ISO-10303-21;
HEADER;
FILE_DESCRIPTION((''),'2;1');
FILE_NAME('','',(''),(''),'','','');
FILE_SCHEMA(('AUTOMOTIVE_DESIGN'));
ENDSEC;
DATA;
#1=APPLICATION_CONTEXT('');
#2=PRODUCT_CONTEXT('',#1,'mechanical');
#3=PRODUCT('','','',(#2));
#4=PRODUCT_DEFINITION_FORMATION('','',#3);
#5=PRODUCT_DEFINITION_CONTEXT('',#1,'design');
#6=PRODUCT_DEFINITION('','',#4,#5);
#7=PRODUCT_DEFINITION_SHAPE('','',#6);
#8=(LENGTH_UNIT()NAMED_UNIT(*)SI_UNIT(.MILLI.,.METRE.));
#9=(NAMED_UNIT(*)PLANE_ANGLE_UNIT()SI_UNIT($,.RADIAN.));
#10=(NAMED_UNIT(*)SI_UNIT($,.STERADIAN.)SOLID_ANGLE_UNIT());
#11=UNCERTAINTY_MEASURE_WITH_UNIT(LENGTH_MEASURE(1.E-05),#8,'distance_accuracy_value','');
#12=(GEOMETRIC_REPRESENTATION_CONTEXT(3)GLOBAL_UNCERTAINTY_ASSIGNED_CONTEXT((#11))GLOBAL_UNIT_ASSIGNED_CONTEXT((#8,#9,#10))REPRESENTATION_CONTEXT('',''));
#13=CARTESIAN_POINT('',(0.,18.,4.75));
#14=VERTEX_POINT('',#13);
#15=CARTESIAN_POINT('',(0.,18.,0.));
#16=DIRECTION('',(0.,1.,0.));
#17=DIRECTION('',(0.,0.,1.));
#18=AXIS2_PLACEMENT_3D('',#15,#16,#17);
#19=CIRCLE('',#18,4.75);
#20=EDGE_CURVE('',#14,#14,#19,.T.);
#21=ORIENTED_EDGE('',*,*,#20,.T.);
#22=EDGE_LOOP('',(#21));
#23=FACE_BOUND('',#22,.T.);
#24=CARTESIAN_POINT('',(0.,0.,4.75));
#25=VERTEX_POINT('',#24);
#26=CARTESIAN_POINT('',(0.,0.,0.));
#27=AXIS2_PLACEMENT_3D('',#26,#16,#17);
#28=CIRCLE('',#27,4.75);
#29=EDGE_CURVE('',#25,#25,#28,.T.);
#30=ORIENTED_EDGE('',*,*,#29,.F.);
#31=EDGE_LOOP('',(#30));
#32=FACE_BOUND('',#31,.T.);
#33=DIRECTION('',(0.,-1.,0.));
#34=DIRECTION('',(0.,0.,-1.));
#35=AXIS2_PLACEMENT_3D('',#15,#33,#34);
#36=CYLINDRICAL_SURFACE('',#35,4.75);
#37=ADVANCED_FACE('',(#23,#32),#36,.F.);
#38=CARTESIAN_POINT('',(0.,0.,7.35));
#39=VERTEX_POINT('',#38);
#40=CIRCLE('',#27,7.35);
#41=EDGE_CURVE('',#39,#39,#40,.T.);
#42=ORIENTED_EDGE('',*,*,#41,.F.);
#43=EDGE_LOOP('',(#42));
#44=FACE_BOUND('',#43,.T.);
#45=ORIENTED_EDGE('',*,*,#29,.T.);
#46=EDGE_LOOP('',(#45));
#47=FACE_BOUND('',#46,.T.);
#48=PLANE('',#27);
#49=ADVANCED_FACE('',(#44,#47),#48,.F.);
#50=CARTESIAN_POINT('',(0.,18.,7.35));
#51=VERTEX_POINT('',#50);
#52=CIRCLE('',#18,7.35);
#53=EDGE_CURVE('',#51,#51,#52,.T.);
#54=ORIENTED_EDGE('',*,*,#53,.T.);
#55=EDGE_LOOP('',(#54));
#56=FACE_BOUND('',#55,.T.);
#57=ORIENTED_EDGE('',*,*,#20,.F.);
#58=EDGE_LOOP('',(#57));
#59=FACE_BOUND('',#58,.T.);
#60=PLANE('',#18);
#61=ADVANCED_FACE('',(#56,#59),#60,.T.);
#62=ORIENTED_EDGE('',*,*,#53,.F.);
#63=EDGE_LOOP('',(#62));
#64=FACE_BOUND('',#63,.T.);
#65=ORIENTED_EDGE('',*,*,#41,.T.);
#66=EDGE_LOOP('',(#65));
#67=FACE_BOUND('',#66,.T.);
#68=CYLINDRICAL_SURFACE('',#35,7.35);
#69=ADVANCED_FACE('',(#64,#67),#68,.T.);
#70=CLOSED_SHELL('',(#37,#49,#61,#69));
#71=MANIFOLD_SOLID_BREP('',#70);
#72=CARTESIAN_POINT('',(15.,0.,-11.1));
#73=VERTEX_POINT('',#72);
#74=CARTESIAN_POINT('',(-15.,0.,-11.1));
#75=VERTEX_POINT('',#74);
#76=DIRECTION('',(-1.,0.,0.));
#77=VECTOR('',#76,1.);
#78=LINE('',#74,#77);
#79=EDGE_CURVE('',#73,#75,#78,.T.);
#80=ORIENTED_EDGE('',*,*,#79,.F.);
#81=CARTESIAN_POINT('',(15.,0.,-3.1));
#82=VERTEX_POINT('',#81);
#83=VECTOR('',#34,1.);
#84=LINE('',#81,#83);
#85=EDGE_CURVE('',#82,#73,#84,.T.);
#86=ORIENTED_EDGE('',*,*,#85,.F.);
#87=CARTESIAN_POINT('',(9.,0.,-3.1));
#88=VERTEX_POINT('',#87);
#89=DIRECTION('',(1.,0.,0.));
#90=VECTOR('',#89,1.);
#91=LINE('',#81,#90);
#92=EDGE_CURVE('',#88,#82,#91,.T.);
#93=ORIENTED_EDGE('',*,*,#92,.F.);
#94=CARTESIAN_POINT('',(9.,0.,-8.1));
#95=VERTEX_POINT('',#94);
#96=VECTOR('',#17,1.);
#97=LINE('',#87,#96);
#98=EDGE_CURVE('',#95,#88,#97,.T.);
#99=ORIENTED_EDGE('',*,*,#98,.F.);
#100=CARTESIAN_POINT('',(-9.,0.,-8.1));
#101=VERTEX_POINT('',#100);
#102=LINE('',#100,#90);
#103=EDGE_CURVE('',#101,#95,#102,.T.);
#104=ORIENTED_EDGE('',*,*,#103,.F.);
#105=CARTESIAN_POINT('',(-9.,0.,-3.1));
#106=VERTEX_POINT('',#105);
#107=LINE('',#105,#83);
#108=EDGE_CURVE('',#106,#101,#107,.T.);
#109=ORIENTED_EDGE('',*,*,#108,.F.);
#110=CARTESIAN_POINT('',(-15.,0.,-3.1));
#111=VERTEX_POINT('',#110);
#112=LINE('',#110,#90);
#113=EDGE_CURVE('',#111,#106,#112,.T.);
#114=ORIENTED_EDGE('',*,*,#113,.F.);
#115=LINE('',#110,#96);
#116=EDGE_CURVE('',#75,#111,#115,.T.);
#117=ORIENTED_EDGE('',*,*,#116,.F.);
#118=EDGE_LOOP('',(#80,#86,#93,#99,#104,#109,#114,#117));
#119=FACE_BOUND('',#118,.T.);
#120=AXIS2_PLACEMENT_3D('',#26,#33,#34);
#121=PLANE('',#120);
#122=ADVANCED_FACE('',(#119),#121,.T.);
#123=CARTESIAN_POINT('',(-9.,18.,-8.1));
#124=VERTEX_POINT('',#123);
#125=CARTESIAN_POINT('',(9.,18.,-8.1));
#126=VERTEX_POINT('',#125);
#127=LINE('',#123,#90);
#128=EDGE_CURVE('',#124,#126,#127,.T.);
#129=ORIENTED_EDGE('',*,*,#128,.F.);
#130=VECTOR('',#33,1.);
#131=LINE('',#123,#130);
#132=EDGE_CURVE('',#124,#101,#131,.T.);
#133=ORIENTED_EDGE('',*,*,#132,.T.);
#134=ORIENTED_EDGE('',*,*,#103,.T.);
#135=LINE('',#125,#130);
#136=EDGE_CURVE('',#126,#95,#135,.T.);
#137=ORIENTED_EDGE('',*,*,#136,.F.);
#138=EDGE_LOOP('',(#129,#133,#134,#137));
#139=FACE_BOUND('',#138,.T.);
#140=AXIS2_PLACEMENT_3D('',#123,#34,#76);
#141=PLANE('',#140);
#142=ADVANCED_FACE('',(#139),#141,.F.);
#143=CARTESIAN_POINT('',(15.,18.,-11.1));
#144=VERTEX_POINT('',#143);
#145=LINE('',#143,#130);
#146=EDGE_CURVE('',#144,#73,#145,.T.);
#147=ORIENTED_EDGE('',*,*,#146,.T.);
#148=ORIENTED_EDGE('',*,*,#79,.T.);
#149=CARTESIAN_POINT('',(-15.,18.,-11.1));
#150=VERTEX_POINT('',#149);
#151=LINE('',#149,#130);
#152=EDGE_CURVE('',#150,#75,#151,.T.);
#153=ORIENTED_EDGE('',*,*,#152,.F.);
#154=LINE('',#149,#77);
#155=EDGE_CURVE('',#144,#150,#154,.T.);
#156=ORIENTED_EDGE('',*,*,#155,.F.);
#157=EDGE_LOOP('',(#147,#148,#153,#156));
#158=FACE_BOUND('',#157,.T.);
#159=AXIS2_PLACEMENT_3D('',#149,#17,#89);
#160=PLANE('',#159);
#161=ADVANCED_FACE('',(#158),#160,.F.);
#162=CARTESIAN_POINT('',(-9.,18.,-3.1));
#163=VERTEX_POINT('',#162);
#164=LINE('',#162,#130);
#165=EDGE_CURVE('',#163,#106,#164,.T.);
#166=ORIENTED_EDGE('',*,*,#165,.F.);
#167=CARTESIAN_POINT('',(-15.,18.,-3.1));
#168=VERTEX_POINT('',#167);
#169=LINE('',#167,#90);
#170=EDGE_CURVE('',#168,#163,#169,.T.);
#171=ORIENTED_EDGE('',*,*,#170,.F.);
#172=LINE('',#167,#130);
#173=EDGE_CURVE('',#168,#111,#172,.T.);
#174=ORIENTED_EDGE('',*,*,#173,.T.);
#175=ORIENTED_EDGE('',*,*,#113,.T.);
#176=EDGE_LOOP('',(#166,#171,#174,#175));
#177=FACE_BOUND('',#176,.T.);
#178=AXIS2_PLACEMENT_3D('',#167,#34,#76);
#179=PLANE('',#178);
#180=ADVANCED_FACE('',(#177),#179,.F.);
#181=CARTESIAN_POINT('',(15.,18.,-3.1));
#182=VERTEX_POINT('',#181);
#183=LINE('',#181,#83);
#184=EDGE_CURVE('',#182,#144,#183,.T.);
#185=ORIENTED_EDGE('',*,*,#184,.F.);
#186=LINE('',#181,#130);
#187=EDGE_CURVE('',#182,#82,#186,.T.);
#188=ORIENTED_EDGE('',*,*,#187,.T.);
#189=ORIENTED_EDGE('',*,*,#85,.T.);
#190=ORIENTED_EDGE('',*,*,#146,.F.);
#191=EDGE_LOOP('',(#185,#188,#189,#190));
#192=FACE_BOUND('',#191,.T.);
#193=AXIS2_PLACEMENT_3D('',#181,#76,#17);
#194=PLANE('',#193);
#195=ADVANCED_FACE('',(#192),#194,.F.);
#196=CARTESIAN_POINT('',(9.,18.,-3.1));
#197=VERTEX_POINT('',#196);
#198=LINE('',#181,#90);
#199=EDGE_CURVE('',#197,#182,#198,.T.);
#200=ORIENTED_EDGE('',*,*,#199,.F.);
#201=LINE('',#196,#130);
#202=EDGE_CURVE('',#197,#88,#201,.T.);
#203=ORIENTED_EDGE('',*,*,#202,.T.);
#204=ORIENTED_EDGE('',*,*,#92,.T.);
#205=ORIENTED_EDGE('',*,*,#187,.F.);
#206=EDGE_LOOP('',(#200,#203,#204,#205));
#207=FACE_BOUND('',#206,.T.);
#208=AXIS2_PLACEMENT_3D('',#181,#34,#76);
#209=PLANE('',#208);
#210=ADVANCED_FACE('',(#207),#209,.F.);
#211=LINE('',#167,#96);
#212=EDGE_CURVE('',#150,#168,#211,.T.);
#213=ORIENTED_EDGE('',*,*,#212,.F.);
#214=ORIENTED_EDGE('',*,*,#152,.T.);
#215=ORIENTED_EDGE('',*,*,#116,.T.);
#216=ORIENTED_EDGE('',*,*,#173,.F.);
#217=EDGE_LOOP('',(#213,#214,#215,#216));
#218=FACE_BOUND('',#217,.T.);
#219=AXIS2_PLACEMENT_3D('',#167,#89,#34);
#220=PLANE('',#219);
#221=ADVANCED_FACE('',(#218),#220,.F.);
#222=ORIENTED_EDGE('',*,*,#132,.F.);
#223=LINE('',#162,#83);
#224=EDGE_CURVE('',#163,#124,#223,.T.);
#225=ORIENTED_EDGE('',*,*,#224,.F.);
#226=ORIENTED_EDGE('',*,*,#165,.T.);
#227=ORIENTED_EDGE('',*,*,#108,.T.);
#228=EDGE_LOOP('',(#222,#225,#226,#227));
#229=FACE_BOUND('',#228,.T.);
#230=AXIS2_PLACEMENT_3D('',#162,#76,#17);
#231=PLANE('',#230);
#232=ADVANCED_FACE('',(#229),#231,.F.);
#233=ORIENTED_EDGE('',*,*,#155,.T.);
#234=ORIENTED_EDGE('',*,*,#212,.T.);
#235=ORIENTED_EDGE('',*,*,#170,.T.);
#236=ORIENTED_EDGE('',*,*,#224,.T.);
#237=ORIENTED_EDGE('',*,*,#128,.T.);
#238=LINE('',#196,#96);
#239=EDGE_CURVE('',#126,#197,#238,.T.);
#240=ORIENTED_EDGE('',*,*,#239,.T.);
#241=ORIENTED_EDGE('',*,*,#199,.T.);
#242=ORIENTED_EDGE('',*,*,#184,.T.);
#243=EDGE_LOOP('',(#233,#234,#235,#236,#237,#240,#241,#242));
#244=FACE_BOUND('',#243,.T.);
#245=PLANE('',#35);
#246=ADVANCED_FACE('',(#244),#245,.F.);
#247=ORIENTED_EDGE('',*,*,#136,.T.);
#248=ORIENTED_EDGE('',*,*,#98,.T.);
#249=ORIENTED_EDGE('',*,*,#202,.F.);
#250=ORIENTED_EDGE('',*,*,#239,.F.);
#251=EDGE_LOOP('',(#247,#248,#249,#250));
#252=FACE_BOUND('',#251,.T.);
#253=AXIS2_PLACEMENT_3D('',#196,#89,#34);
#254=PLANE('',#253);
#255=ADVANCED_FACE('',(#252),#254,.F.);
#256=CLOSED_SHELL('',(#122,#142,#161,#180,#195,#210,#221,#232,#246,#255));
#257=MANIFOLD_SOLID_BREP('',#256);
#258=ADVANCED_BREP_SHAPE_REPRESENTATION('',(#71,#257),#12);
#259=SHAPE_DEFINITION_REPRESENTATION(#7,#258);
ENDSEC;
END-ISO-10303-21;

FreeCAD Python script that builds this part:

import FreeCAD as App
import Part
import Sketcher
from FreeCAD import Vector


def add_polygon(sketch, points):
    """Adds a closed chain of lines whose ends are joined by coincident constraints."""
    first, n = sketch.GeometryCount, len(points)
    for a, b in zip(points, points[1:] + points[:1]):
        sketch.addGeometry(Part.LineSegment(App.Vector(*a, 0), App.Vector(*b, 0)), False)
    for i in range(n):
        sketch.addConstraint(Sketcher.Constraint("Coincident", first + i, 2, first + (i + 1) % n, 1))

doc = App.newDocument("Part")
body = doc.addObject("PartDesign::Body", "Body")

sketch1 = body.newObject("Sketcher::SketchObject", "Sketch")
sketch1.AttachmentSupport = (doc.getObject("XZ_Plane"), [""])
sketch1.MapMode = "FlatFace"
sketch1.addGeometry([
    Part.Circle(Vector(0, 0, 0), Vector(0, 0, 1), 7.3),
    Part.Circle(Vector(0, 0, 0), Vector(0, 0, 1), 4.8),
], False)
sketch1.addConstraint([
    Sketcher.Constraint("Coincident", 0, 3, -1, 1),
    Sketcher.Constraint("Coincident", 1, 3, -1, 1),
    Sketcher.Constraint("Diameter", 0, 14.7),
    Sketcher.Constraint("Diameter", 1, 9.5),
])
pad1 = body.newObject("PartDesign::Pad", "Pad")
pad1.Profile = sketch1
pad1.Length = 18
pad1.Reversed = True
body2 = doc.addObject("PartDesign::Body", "Body001")

sketch2 = body2.newObject("Sketcher::SketchObject", "Sketch001")
sketch2.AttachmentSupport = (doc.getObject("XZ_Plane001"), [""])
sketch2.MapMode = "FlatFace"
add_polygon(sketch2, [(-15, -3), (-9, -3), (-9, -8), (9, -8), (9, -3), (15, -3), (15, -11), (-15, -11)])
sketch2.addConstraint([
    Sketcher.Constraint("Horizontal", 0),
    Sketcher.Constraint("Vertical", 1),
    Sketcher.Constraint("Horizontal", 2),
    Sketcher.Constraint("Vertical", 3),
    Sketcher.Constraint("Horizontal", 4),
    Sketcher.Constraint("Vertical", 5),
    Sketcher.Constraint("Horizontal", 6),
    Sketcher.Constraint("Vertical", 7),
    Sketcher.Constraint("Symmetric", 0, 2, 3, 2, -2),
    Sketcher.Constraint("Equal", 0, 4),
    Sketcher.Constraint("DistanceX", 0, 1, 0, 2, 6.0),
    Sketcher.Constraint("DistanceX", 2, 1, 2, 2, 18.0),
    Sketcher.Constraint("DistanceY", 1, 2, 1, 1, 5.0),
    Sketcher.Constraint("DistanceY", 5, 2, 5, 1, 8.0),
    Sketcher.Constraint("DistanceY", 0, 2, -1, 1, 3.1),
])
pad2 = body2.newObject("PartDesign::Pad", "Pad001")
pad2.Profile = sketch2
pad2.Length = 18
pad2.Reversed = True

doc.recompute()
